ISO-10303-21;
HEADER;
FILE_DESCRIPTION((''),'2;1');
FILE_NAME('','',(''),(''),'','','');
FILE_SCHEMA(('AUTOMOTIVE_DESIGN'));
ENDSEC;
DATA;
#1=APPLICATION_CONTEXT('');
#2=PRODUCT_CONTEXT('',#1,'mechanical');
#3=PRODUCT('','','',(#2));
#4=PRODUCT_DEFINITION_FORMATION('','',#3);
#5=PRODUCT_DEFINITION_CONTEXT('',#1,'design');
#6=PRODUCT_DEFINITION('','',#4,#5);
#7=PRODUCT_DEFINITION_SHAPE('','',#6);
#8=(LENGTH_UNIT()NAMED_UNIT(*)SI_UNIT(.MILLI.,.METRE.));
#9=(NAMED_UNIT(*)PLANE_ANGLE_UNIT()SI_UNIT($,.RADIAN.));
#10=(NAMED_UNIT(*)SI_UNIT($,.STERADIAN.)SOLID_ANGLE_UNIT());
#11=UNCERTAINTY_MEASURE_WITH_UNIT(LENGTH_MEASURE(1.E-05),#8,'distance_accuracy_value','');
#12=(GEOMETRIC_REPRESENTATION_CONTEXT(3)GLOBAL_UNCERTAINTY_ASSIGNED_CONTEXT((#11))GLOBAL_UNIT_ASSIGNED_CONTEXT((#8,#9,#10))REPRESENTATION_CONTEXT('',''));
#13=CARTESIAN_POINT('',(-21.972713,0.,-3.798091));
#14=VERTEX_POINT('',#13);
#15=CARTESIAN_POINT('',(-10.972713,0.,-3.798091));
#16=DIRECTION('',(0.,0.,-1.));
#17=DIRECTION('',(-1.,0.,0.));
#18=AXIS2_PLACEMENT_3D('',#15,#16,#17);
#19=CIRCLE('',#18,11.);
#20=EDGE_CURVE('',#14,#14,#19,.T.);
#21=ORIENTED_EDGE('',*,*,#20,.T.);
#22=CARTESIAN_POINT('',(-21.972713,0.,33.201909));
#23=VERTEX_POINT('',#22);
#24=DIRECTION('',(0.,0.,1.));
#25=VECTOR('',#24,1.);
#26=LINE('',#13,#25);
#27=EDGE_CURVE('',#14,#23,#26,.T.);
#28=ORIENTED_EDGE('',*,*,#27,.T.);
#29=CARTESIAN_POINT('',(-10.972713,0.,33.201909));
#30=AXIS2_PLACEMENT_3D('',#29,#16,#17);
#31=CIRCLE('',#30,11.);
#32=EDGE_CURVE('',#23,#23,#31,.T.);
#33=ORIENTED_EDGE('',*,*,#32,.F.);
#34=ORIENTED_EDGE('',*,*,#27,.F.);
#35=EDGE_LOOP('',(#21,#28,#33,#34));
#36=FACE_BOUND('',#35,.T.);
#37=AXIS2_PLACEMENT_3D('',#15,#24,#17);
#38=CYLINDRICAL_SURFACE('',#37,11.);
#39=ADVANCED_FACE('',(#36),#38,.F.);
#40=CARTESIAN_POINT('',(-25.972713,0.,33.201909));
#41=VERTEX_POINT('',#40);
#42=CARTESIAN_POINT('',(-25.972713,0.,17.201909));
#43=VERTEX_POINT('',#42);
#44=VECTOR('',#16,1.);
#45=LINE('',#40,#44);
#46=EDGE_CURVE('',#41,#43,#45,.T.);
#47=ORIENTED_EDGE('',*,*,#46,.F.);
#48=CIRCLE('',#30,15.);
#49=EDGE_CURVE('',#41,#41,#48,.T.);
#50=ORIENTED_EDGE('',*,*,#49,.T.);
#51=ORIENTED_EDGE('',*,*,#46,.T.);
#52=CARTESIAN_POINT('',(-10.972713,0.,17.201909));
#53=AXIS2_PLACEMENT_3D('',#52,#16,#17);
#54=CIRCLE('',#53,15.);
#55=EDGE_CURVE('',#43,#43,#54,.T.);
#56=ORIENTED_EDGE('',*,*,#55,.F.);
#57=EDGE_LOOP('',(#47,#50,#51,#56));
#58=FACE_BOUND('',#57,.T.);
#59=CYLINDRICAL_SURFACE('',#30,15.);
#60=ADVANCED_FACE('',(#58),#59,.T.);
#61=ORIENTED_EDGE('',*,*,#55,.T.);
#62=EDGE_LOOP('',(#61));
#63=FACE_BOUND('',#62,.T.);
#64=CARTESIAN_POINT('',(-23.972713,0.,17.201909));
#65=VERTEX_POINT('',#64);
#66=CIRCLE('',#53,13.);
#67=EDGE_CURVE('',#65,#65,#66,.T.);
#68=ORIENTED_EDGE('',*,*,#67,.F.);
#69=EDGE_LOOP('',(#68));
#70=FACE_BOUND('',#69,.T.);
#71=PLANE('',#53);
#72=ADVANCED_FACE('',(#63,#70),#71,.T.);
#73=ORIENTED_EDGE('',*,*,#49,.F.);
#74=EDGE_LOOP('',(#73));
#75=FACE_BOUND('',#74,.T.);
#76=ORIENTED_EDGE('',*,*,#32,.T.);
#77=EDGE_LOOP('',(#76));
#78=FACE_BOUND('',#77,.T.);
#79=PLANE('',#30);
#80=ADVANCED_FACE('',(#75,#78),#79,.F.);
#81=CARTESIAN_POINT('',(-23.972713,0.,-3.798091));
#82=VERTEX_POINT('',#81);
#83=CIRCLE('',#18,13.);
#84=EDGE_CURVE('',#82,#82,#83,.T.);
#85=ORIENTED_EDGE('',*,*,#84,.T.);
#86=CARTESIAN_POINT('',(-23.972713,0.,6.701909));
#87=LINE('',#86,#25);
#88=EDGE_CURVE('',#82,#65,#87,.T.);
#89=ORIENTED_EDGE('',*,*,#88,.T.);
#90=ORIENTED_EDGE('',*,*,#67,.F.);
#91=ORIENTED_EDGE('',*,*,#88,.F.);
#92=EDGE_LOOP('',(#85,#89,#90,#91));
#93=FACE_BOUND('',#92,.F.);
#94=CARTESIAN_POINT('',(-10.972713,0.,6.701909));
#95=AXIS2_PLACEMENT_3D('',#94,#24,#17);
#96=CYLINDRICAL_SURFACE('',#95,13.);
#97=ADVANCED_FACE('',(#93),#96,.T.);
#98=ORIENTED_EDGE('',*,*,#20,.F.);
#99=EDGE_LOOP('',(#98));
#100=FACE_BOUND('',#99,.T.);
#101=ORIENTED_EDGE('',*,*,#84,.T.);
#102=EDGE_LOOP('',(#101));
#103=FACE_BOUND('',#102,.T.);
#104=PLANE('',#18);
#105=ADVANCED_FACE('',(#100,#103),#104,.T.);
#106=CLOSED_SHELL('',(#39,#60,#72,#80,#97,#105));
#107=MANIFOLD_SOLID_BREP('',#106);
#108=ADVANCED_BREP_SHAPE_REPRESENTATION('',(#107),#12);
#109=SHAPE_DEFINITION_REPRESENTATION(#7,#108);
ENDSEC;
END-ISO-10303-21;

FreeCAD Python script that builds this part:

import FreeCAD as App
import Part
import Sketcher
Q = App.Units.Quantity


def add_polygon(sketch, points):
    """Adds a closed chain of lines whose ends are joined by coincident constraints."""
    first, n = sketch.GeometryCount, len(points)
    for a, b in zip(points, points[1:] + points[:1]):
        sketch.addGeometry(Part.LineSegment(App.Vector(*a, 0), App.Vector(*b, 0)), False)
    for i in range(n):
        sketch.addConstraint(Sketcher.Constraint("Coincident", first + i, 2, first + (i + 1) % n, 1))

doc = App.newDocument("Part")
body = doc.addObject("PartDesign::Body", "Body")

# Sketch on XZ plane
sketch1 = body.newObject("Sketcher::SketchObject", "Sketch")
sketch1.AttachmentSupport = (doc.getObject("XZ_Plane"), [""])
sketch1.MapMode = "FlatFace"
add_polygon(sketch1, [(-26, 17.2), (-24, 17.2), (-24, -3.8), (-22, -3.8), (-22, 33.2), (-26, 33.2)])  # lines 0-5
sketch1.addGeometry(Part.LineSegment(App.Vector(-11, 33.2, 0), App.Vector(-11, -3.8, 0)), True)  # axis
sketch1.addConstraint([
    Sketcher.Constraint("Horizontal", 0),
    Sketcher.Constraint("Vertical", 1),
    Sketcher.Constraint("Horizontal", 2),
    Sketcher.Constraint("Vertical", 3),
    Sketcher.Constraint("Horizontal", 4),
    Sketcher.Constraint("Vertical", 5),
    Sketcher.Constraint("Vertical", 6),
    Sketcher.Constraint("Horizontal", 4, 2, 6, 1),
    Sketcher.Constraint("Horizontal", 2, 2, 6, 2),
    Sketcher.Constraint("Equal", 0, 2),
    Sketcher.Constraint("DistanceX", 0, 1, 0, 2, Q("2 mm")),
    Sketcher.Constraint("DistanceY", 1, 2, 1, 1, Q("21 mm")),
    Sketcher.Constraint("DistanceY", 3, 1, 3, 2, Q("37 mm")),
    Sketcher.Constraint("DistanceX", 3, 2, 6, 1, Q("11 mm")),
    Sketcher.Constraint("DistanceY", -1, 1, 0, 2, Q("17.201909 mm")),
    Sketcher.Constraint("DistanceX", 0, 2, -1, 1, Q("23.972713 mm")),
])
revolution = body.newObject("PartDesign::Revolution", "Revolution")
revolution.Profile = sketch1
revolution.ReferenceAxis = (sketch1, ["Axis0"])
revolution.Angle = 360

doc.recompute()
